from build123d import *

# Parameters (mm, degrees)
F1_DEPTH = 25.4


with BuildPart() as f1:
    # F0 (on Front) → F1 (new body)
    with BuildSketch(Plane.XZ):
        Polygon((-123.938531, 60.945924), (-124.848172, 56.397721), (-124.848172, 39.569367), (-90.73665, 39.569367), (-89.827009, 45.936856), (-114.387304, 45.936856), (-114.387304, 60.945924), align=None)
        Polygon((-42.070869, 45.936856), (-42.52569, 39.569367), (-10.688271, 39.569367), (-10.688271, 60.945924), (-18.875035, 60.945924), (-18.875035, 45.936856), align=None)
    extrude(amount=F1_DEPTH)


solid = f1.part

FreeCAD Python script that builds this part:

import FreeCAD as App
import Part
import Sketcher

V = App.Vector
Q = App.Units.Quantity

doc = App.newDocument("Part")
params = doc.addObject("Spreadsheet::Sheet", "Params")
for row, (alias, value) in enumerate([
    ("pad1_length", "1 in"),
], start=1):
    params.set(f"A{row}", alias)
    params.set(f"B{row}", "=" + value)
    params.setAlias(f"B{row}", alias)

body = doc.addObject("PartDesign::Body", "Body")
body.AllowCompound = True

sketch1 = body.newObject("Sketcher::SketchObject", "Sketch")
sketch1.AttachmentSupport = (doc.getObject("XZ_Plane"), [""])
sketch1.MapMode = "FlatFace"
sketch1.addGeometry(Part.LineSegment(V(-123.9, 60.9, 0), V(-124.8, 56.4, 0)), False)
sketch1.addGeometry(Part.LineSegment(V(-124.8, 56.4, 0), V(-124.8, 39.6, 0)), False)
sketch1.addGeometry(Part.LineSegment(V(-124.8, 39.6, 0), V(-90.7, 39.6, 0)), False)
sketch1.addGeometry(Part.LineSegment(V(-90.7, 39.6, 0), V(-89.8, 45.9, 0)), False)
sketch1.addGeometry(Part.LineSegment(V(-89.8, 45.9, 0), V(-114.4, 45.9, 0)), False)
sketch1.addGeometry(Part.LineSegment(V(-114.4, 45.9, 0), V(-114.4, 60.9, 0)), False)
sketch1.addGeometry(Part.LineSegment(V(-114.4, 60.9, 0), V(-123.9, 60.9, 0)), False)
sketch1.addGeometry(Part.LineSegment(V(-42.1, 45.9, 0), V(-42.5, 39.6, 0)), False)
sketch1.addGeometry(Part.LineSegment(V(-42.5, 39.6, 0), V(-10.7, 39.6, 0)), False)
sketch1.addGeometry(Part.LineSegment(V(-10.7, 39.6, 0), V(-10.7, 60.9, 0)), False)
sketch1.addGeometry(Part.LineSegment(V(-10.7, 60.9, 0), V(-18.9, 60.9, 0)), False)
sketch1.addGeometry(Part.LineSegment(V(-18.9, 60.9, 0), V(-18.9, 45.9, 0)), False)
sketch1.addGeometry(Part.LineSegment(V(-18.9, 45.9, 0), V(-42.1, 45.9, 0)), False)
sketch1.addConstraint(Sketcher.Constraint("Coincident", 0, 2, 1, 1))
sketch1.addConstraint(Sketcher.Constraint("Coincident", 1, 2, 2, 1))
sketch1.addConstraint(Sketcher.Constraint("Coincident", 2, 2, 3, 1))
sketch1.addConstraint(Sketcher.Constraint("Coincident", 3, 2, 4, 1))
sketch1.addConstraint(Sketcher.Constraint("Coincident", 4, 2, 5, 1))
sketch1.addConstraint(Sketcher.Constraint("Coincident", 5, 2, 6, 1))
sketch1.addConstraint(Sketcher.Constraint("Coincident", 6, 2, 0, 1))
sketch1.addConstraint(Sketcher.Constraint("Coincident", 7, 2, 8, 1))
sketch1.addConstraint(Sketcher.Constraint("Coincident", 8, 2, 9, 1))
sketch1.addConstraint(Sketcher.Constraint("Coincident", 9, 2, 10, 1))
sketch1.addConstraint(Sketcher.Constraint("Coincident", 10, 2, 11, 1))
sketch1.addConstraint(Sketcher.Constraint("Coincident", 11, 2, 12, 1))
sketch1.addConstraint(Sketcher.Constraint("Coincident", 12, 2, 7, 1))
sketch1.addConstraint(Sketcher.Constraint("Vertical", 1))
sketch1.addConstraint(Sketcher.Constraint("Horizontal", 2))
sketch1.addConstraint(Sketcher.Constraint("Horizontal", 4))
sketch1.addConstraint(Sketcher.Constraint("Vertical", 5))
sketch1.addConstraint(Sketcher.Constraint("Horizontal", 6))
sketch1.addConstraint(Sketcher.Constraint("Horizontal", 8))
sketch1.addConstraint(Sketcher.Constraint("Vertical", 9))
sketch1.addConstraint(Sketcher.Constraint("Horizontal", 10))
sketch1.addConstraint(Sketcher.Constraint("Vertical", 11))
sketch1.addConstraint(Sketcher.Constraint("Horizontal", 12))
sketch1.addConstraint(Sketcher.Constraint("Horizontal", 2, 2, 7, 2))
sketch1.addConstraint(Sketcher.Constraint("Horizontal", 6, 2, 9, 2))
sketch1.addConstraint(Sketcher.Constraint("Horizontal", 4, 2, 11, 2))
sketch1.addConstraint(Sketcher.Constraint("DistanceX", 8, 1, 8, 2, Q("31.837419 mm")))
sketch1.addConstraint(Sketcher.Constraint("DistanceX", 12, 2, 8, 2, Q("31.382598 mm")))
sketch1.addConstraint(Sketcher.Constraint("Distance", 7, Q("6.383712 mm")))
sketch1.addConstraint(Sketcher.Constraint("DistanceX", 2, 1, 2, 2, Q("34.111522 mm")))
sketch1.addConstraint(Sketcher.Constraint("DistanceX", 4, 2, 4, 1, Q("24.560295 mm")))
sketch1.addConstraint(Sketcher.Constraint("DistanceX", 6, 2, 6, 1, Q("9.551227 mm")))
sketch1.addConstraint(Sketcher.Constraint("DistanceX", 10, 2, 10, 1, Q("8.186764 mm")))
sketch1.addConstraint(Sketcher.Constraint("DistanceY", 1, 2, 1, 1, Q("16.828354 mm")))
sketch1.addConstraint(Sketcher.Constraint("DistanceY", 5, 1, 5, 2, Q("15.009068 mm")))
sketch1.addConstraint(Sketcher.Constraint("DistanceY", -1, 1, 0, 2, Q("56.397721 mm")))
sketch1.addConstraint(Sketcher.Constraint("DistanceX", 2, 2, -1, 1, Q("90.73665 mm")))
sketch1.addConstraint(Sketcher.Constraint("DistanceX", 3, 2, -1, 1, Q("89.827009 mm")))
sketch1.addConstraint(Sketcher.Constraint("DistanceX", 7, 2, -1, 1, Q("42.52569 mm")))
pad1 = body.newObject("PartDesign::Pad", "Pad")
pad1.Profile = sketch1
pad1.setExpression("Length", "Params.pad1_length")

doc.recompute()
